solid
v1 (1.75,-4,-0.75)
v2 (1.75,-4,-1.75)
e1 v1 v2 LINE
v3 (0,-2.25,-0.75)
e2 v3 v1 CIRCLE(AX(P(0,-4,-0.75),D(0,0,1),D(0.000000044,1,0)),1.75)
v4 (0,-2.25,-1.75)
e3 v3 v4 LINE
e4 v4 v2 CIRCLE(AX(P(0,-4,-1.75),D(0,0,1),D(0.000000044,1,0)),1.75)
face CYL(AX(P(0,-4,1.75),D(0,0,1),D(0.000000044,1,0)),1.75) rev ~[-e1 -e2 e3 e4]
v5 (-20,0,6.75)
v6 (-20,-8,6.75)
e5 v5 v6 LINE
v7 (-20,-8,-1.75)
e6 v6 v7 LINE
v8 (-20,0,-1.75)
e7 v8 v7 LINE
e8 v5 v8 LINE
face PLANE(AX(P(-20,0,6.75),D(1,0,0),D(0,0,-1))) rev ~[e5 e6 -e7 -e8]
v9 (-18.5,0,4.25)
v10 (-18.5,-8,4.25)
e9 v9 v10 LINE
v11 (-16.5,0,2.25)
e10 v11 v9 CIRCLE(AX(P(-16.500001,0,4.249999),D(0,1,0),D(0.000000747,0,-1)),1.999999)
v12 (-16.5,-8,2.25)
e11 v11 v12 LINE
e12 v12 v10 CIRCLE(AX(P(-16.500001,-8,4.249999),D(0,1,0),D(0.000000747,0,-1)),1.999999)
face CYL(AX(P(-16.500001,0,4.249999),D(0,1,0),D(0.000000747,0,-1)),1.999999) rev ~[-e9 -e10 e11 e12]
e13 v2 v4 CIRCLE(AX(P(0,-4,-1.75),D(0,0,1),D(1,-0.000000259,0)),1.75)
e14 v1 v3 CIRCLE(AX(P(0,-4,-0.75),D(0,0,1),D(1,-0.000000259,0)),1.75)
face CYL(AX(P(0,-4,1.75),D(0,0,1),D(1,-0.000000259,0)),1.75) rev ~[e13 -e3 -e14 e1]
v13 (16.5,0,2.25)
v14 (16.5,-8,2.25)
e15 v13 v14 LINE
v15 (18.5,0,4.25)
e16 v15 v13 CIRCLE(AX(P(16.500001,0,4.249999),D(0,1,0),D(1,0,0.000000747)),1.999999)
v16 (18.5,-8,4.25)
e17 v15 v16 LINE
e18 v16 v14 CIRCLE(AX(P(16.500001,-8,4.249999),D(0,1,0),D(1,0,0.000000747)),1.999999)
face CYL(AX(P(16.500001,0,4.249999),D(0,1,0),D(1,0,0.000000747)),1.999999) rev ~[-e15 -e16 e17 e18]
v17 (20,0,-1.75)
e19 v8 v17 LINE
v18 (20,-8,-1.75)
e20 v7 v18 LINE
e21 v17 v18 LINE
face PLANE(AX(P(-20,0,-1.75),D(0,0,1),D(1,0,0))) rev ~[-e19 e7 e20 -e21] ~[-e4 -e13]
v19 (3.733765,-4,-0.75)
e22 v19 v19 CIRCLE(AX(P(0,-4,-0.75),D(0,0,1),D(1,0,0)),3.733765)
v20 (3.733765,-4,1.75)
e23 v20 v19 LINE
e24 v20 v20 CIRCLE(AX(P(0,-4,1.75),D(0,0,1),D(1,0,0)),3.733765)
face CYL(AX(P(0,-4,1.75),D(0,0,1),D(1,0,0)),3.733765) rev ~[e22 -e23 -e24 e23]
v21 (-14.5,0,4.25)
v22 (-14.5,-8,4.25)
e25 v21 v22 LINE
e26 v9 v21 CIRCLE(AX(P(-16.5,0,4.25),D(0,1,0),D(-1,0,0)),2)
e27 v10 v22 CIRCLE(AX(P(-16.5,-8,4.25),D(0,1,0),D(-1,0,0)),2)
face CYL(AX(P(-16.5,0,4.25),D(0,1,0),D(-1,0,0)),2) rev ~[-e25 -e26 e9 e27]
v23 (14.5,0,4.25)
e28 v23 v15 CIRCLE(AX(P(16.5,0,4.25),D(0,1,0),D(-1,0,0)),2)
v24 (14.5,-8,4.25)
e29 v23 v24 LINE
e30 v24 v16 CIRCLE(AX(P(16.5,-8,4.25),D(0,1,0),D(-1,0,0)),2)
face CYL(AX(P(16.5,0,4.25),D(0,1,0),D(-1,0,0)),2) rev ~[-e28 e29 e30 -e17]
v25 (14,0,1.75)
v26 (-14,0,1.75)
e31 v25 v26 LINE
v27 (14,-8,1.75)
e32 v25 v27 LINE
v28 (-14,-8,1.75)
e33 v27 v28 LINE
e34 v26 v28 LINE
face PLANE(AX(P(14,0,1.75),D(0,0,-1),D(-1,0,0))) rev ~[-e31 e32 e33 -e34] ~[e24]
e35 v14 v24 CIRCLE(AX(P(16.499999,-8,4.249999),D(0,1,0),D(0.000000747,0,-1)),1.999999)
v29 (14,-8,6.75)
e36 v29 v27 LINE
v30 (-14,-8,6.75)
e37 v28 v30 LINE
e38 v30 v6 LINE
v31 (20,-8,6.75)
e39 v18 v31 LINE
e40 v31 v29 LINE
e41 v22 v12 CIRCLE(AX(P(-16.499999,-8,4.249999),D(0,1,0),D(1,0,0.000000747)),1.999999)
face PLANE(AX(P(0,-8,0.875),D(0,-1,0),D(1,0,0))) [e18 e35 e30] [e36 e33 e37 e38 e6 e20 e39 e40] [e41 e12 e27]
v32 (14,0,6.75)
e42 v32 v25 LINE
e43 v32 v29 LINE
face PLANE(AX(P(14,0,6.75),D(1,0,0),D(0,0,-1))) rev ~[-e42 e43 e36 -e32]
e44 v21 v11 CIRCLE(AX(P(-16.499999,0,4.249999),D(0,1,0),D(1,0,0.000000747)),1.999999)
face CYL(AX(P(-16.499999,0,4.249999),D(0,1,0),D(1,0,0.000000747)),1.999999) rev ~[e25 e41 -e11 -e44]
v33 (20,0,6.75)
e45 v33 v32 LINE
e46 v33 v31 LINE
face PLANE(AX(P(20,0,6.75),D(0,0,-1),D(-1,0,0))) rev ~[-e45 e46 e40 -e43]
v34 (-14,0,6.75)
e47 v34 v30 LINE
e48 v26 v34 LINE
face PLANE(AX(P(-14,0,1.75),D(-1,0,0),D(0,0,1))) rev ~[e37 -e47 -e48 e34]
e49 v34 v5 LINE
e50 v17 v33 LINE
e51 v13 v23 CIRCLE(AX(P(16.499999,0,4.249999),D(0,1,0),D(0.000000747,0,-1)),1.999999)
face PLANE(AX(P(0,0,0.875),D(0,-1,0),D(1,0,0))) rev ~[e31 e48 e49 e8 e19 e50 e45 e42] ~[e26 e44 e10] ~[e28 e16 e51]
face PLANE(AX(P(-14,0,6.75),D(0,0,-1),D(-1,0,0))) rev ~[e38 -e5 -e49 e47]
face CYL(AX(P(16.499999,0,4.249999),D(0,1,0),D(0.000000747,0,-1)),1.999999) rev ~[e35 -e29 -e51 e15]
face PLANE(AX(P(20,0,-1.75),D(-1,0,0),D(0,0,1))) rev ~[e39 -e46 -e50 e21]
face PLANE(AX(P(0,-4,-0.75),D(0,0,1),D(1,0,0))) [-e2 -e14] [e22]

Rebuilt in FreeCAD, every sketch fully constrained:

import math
import FreeCAD as App
import Part
import Sketcher
from FreeCAD import Vector


def add_polygon(sketch, points):
    """Adds a closed chain of lines whose ends are joined by coincident constraints."""
    first, n = sketch.GeometryCount, len(points)
    for a, b in zip(points, points[1:] + points[:1]):
        sketch.addGeometry(Part.LineSegment(App.Vector(*a, 0), App.Vector(*b, 0)), False)
    for i in range(n):
        sketch.addConstraint(Sketcher.Constraint("Coincident", first + i, 2, first + (i + 1) % n, 1))

doc = App.newDocument("Part")
body = doc.addObject("PartDesign::Body", "Body")

sketch1 = body.newObject("Sketcher::SketchObject", "Sketch")
sketch1.AttachmentSupport = (doc.getObject("XZ_Plane"), [""])
sketch1.MapMode = "FlatFace"
add_polygon(sketch1, [(14, 1.8), (-14, 1.8), (-14, 6.8), (-20, 6.8), (-20, -1.8), (20, -1.8), (20, 6.8), (14, 6.8)])
sketch1.addGeometry(Part.ArcOfCircle(Part.Circle(Vector(-16.5, 4.2, 0), Vector(0, 0, 1), 2), math.radians(-90), math.radians(0)), False)
sketch1.addGeometry(Part.ArcOfCircle(Part.Circle(Vector(-16.5, 4.2, 0), Vector(0, 0, 1), 2), math.radians(180), math.radians(270)), False)
sketch1.addGeometry(Part.ArcOfCircle(Part.Circle(Vector(-16.5, 4.2, 0), Vector(0, 0, 1), 2), math.radians(0), math.radians(180)), False)
sketch1.addGeometry(Part.ArcOfCircle(Part.Circle(Vector(16.5, 4.2, 0), Vector(0, 0, 1), 2), math.radians(-90), math.radians(0)), False)
sketch1.addGeometry(Part.ArcOfCircle(Part.Circle(Vector(16.5, 4.2, 0), Vector(0, 0, 1), 2), math.radians(180), math.radians(270)), False)
sketch1.addGeometry(Part.ArcOfCircle(Part.Circle(Vector(16.5, 4.2, 0), Vector(0, 0, 1), 2), math.radians(0), math.radians(180)), False)
sketch1.addConstraint([
    Sketcher.Constraint("Tangent", 8, 1, 9, 2),
    Sketcher.Constraint("Tangent", 9, 1, 10, 2),
    Sketcher.Constraint("Tangent", 10, 1, 8, 2),
    Sketcher.Constraint("Tangent", 11, 1, 12, 2),
    Sketcher.Constraint("Tangent", 12, 1, 13, 2),
    Sketcher.Constraint("Tangent", 13, 1, 11, 2),
    Sketcher.Constraint("Horizontal", 0),
    Sketcher.Constraint("Vertical", 1),
    Sketcher.Constraint("Horizontal", 2),
    Sketcher.Constraint("Vertical", 3),
    Sketcher.Constraint("Horizontal", 4),
    Sketcher.Constraint("Vertical", 5),
    Sketcher.Constraint("Horizontal", 6),
    Sketcher.Constraint("Vertical", 7),
    Sketcher.Constraint("Equal", 10, 11),
    Sketcher.Constraint("Symmetric", 8, 3, 11, 3, -2),
    Sketcher.Constraint("Symmetric", 2, 2, 5, 2, -2),
    Sketcher.Constraint("Horizontal", 13, 3, 9, 1),
    Sketcher.Constraint("Horizontal", 9, 1, 10, 1),
    Sketcher.Constraint("Horizontal", 10, 1, 12, 1),
    Sketcher.Constraint("Horizontal", 12, 1, 13, 1),
    Sketcher.Constraint("Vertical", 10, 3, 8, 1),
    Sketcher.Constraint("Vertical", 13, 3, 11, 1),
    Sketcher.Constraint("Equal", 2, 6),
    Sketcher.Constraint("Radius", 8, 1.999999),
    Sketcher.Constraint("DistanceX", 0, 2, 0, 1, 28.0),
    Sketcher.Constraint("DistanceX", 2, 2, 2, 1, 6.0),
    Sketcher.Constraint("DistanceY", 1, 1, 1, 2, 5.0),
    Sketcher.Constraint("DistanceY", 3, 2, 3, 1, 8.5),
    Sketcher.Constraint("DistanceX", 8, 3, 11, 3, 33.0),
    Sketcher.Constraint("DistanceY", 3, 2, 9, 3, 5.999999),
    Sketcher.Constraint("DistanceY", -1, 1, 8, 3, 4.249999),
])
pad1 = body.newObject("PartDesign::Pad", "Pad")
pad1.Profile = sketch1
pad1.Length = 8

sketch2 = body.newObject("Sketcher::SketchObject", "Sketch001")
sketch2.AttachmentSupport = (doc.getObject("XY_Plane"), [""])
sketch2.MapMode = "FlatFace"
sketch2.AttachmentOffset = App.Placement(Vector(0, 0, 1.75), App.Rotation())
sketch2.addGeometry([
    Part.ArcOfCircle(Part.Circle(Vector(0, -4, 0), Vector(0, 0, 1), 1.7), math.radians(0), math.radians(90)),
    Part.ArcOfCircle(Part.Circle(Vector(0, -4, 0), Vector(0, 0, 1), 1.8), math.radians(90), math.radians(360)),
], False)
sketch2.addConstraint([
    Sketcher.Constraint("Tangent", 0, 1, 1, 2),
    Sketcher.Constraint("Coincident", 1, 1, 0, 2),
    Sketcher.Constraint("PointOnObject", 0, 3, -2),
    Sketcher.Constraint("PointOnObject", 1, 1, -2),
    Sketcher.Constraint("Horizontal", 1, 3, 0, 1),
    Sketcher.Constraint("Radius", 0, 1.75),
    Sketcher.Constraint("DistanceY", 0, 3, -1, 1, 4.0),
])
pocket1 = body.newObject("PartDesign::Pocket", "Pocket")
pocket1.Profile = sketch2
pocket1.Length = 25

sketch3 = body.newObject("Sketcher::SketchObject", "Sketch002")
sketch3.AttachmentSupport = (doc.getObject("XY_Plane"), [""])
sketch3.MapMode = "FlatFace"
sketch3.AttachmentOffset = App.Placement(Vector(0, 0, 1.75), App.Rotation())
sketch3.addGeometry(Part.Circle(Vector(0, -4, 0), Vector(0, 0, 1), 3.7), False)
sketch3.addConstraint([
    Sketcher.Constraint("PointOnObject", 0, 3, -2),
    Sketcher.Constraint("DistanceY", 0, 3, -1, 1, 4.0),
    Sketcher.Constraint("Diameter", 0, 7.46753),
])
pocket2 = body.newObject("PartDesign::Pocket", "Pocket001")
pocket2.Profile = sketch3
pocket2.Length = 2.5

doc.recompute()
